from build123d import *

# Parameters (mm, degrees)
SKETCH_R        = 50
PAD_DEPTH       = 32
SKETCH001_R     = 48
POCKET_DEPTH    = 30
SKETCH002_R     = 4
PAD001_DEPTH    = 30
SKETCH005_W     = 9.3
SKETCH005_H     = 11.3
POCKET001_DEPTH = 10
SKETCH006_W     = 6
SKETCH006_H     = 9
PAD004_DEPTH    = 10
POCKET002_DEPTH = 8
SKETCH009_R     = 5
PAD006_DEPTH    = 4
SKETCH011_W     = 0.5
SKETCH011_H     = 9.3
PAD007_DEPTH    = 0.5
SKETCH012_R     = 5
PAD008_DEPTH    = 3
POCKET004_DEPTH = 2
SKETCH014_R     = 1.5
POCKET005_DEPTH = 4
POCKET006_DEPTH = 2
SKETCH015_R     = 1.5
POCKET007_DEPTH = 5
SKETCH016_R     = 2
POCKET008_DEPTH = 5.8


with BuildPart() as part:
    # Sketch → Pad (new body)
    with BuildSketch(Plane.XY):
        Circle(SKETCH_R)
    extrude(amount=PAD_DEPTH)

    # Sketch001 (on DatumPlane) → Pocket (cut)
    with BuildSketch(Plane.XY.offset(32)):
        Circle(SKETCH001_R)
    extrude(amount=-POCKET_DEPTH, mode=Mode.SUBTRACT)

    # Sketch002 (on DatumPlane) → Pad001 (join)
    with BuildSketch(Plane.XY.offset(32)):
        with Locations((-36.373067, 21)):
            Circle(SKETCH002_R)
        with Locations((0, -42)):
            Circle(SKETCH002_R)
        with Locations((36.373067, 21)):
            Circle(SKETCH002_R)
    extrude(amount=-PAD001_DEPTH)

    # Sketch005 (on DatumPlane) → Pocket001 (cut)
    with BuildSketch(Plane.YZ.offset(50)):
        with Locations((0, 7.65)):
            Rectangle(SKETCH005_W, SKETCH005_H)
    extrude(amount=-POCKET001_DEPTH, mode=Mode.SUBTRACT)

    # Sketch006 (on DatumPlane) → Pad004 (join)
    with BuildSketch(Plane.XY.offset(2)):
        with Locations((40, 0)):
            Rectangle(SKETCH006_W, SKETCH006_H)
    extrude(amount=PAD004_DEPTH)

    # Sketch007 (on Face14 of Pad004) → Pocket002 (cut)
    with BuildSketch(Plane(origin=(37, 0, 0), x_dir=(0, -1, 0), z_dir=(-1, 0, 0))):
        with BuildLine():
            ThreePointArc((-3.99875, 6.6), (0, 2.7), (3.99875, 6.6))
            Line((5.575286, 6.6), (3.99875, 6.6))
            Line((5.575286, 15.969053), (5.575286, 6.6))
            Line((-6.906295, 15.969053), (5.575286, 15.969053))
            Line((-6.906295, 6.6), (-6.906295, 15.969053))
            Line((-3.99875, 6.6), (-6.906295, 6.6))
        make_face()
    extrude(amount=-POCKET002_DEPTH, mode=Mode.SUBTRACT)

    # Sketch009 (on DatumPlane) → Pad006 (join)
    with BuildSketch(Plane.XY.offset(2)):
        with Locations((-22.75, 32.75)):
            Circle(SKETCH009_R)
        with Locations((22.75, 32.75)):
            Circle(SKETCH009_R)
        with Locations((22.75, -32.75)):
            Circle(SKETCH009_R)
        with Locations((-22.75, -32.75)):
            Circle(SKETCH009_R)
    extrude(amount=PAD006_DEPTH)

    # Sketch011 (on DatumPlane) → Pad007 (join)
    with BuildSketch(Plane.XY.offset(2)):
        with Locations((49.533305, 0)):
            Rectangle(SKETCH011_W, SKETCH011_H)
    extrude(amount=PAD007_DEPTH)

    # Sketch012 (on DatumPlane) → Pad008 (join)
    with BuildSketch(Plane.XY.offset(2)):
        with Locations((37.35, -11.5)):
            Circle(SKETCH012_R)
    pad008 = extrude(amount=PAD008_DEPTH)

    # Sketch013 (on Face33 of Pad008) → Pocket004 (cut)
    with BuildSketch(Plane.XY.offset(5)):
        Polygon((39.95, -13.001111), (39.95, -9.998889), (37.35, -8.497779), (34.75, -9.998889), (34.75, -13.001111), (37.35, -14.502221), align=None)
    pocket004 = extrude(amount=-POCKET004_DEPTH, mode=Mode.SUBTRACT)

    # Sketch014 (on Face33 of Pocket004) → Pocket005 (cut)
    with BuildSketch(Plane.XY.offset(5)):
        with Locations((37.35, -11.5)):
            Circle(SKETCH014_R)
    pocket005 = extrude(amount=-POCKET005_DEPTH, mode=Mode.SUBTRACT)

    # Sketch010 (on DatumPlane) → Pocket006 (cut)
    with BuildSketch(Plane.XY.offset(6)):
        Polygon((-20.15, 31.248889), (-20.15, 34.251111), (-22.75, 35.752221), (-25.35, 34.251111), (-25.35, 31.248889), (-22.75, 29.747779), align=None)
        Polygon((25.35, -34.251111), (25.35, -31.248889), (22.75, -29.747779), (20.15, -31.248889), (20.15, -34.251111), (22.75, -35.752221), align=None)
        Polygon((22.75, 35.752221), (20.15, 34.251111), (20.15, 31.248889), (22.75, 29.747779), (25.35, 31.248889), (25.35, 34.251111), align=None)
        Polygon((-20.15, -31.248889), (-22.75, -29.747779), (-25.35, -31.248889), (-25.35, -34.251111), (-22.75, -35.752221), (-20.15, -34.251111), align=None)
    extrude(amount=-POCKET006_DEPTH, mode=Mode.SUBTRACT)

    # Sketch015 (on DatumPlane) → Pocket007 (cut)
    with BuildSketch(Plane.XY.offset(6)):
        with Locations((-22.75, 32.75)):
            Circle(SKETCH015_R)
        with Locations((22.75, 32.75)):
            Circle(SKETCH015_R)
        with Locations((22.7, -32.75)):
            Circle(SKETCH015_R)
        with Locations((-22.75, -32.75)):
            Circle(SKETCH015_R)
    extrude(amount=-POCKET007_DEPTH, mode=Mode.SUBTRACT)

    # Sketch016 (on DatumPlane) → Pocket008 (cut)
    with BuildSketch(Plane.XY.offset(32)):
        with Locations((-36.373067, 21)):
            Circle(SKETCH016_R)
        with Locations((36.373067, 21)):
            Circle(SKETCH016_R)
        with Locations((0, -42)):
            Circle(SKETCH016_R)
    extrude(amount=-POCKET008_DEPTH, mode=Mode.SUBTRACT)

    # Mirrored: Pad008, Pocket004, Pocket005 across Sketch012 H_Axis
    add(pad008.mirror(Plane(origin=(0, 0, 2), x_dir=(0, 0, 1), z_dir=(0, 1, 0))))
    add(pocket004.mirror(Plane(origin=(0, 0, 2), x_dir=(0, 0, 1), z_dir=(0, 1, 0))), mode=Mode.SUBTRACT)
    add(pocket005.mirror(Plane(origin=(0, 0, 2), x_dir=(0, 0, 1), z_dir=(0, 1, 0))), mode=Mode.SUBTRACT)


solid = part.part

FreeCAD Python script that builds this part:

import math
import FreeCAD as App
import Part
import Sketcher
from FreeCAD import Vector
Q = App.Units.Quantity


def add_polygon(sketch, points):
    """Adds a closed chain of lines whose ends are joined by coincident constraints."""
    first, n = sketch.GeometryCount, len(points)
    for a, b in zip(points, points[1:] + points[:1]):
        sketch.addGeometry(Part.LineSegment(App.Vector(*a, 0), App.Vector(*b, 0)), False)
    for i in range(n):
        sketch.addConstraint(Sketcher.Constraint("Coincident", first + i, 2, first + (i + 1) % n, 1))

doc = App.newDocument("Part")
body = doc.addObject("PartDesign::Body", "Body")

sketch1 = body.newObject("Sketcher::SketchObject", "Sketch")
sketch1.AttachmentSupport = (doc.getObject("XY_Plane"), [""])
sketch1.MapMode = "FlatFace"
sketch1.addGeometry(Part.Circle(Vector(0, 0, 0), Vector(0, 0, 1), 50), False)
sketch1.addConstraint([
    Sketcher.Constraint("Coincident", 0, 3, -1, 1),
    Sketcher.Constraint("Diameter", 0, Q("100 mm")),
])
pad1 = body.newObject("PartDesign::Pad", "Pad")
pad1.Profile = sketch1
pad1.Length = 32

sketch2 = body.newObject("Sketcher::SketchObject", "Sketch001")
sketch2.AttachmentSupport = (doc.getObject("XY_Plane"), [""])
sketch2.MapMode = "FlatFace"
sketch2.AttachmentOffset = App.Placement(Vector(0, 0, 32), App.Rotation())
sketch2.addGeometry(Part.Circle(Vector(0, 0, 0), Vector(0, 0, 1), 48), False)
sketch2.addConstraint([
    Sketcher.Constraint("Coincident", 0, 3, -1, 1),
    Sketcher.Constraint("Diameter", 0, Q("96 mm")),
])
pocket1 = body.newObject("PartDesign::Pocket", "Pocket")
pocket1.Profile = sketch2
pocket1.Length = 30

sketch3 = body.newObject("Sketcher::SketchObject", "Sketch002")
sketch3.AttachmentSupport = (doc.getObject("XY_Plane"), [""])
sketch3.MapMode = "FlatFace"
sketch3.AttachmentOffset = App.Placement(Vector(0, 0, 32), App.Rotation())
sketch3.addGeometry([
    Part.Circle(Vector(-36.4, 21, 0), Vector(0, 0, 1), 4),
    Part.Circle(Vector(0, -42, 0), Vector(0, 0, 1), 4),
    Part.Circle(Vector(36.4, 21, 0), Vector(0, 0, 1), 4),
], False)
sketch3.addConstraint([
    Sketcher.Constraint("Equal", 0, 1),
    Sketcher.Constraint("Equal", 1, 2),
    Sketcher.Constraint("Symmetric", 0, 3, 2, 3, -2),
    Sketcher.Constraint("PointOnObject", 1, 3, -2),
    Sketcher.Constraint("Diameter", 0, Q("8 mm")),
    Sketcher.Constraint("DistanceY", -1, 1, 0, 3, Q("21 mm")),
    Sketcher.Constraint("DistanceY", 1, 3, -1, 1, Q("42 mm")),
    Sketcher.Constraint("DistanceX", 0, 3, -1, 1, Q("36.373067 mm")),
])
pad2 = body.newObject("PartDesign::Pad", "Pad001")
pad2.Profile = sketch3
pad2.Length = 30
pad2.Reversed = True

sketch4 = body.newObject("Sketcher::SketchObject", "Sketch003")
sketch4.AttachmentSupport = (doc.getObject("YZ_Plane"), [""])
sketch4.MapMode = "FlatFace"
sketch4.AttachmentOffset = App.Placement(Vector(0, 0, 50), App.Rotation())
add_polygon(sketch4, [(-5, 13), (-5, 2), (5, 2), (5, 13)])
sketch4.addConstraint([
    Sketcher.Constraint("Vertical", 0),
    Sketcher.Constraint("Horizontal", 1),
    Sketcher.Constraint("Vertical", 2),
    Sketcher.Constraint("Horizontal", 3),
    Sketcher.Constraint("DistanceX", 1, 1, 1, 2, Q("9.3 mm")),
    Sketcher.Constraint("DistanceY", 0, 2, 0, 1, Q("11.3 mm")),
    Sketcher.Constraint("DistanceY", -1, 1, 0, 2, Q("2 mm")),
    Sketcher.Constraint("DistanceX", 0, 2, -1, 1, Q("4.65 mm")),
])
pocket2 = body.newObject("PartDesign::Pocket", "Pocket001")
pocket2.Profile = sketch4
pocket2.Length = 10

sketch5 = body.newObject("Sketcher::SketchObject", "Sketch004")
sketch5.AttachmentSupport = (doc.getObject("XY_Plane"), [""])
sketch5.MapMode = "FlatFace"
sketch5.AttachmentOffset = App.Placement(Vector(0, 0, 2), App.Rotation())
add_polygon(sketch5, [(37, 4), (37, -4), (43, -4), (43, 4)])
sketch5.addConstraint([
    Sketcher.Constraint("Vertical", 0),
    Sketcher.Constraint("Horizontal", 1),
    Sketcher.Constraint("Vertical", 2),
    Sketcher.Constraint("Horizontal", 3),
    Sketcher.Constraint("DistanceX", 1, 1, 1, 2, Q("6 mm")),
    Sketcher.Constraint("DistanceY", 0, 2, 0, 1, Q("9 mm")),
    Sketcher.Constraint("DistanceX", -1, 1, 0, 2, Q("37 mm")),
    Sketcher.Constraint("DistanceY", 0, 2, -1, 1, Q("4.5 mm")),
])
pad3 = body.newObject("PartDesign::Pad", "Pad002")
pad3.Profile = sketch5
pad3.Length = 10

sketch6 = body.newObject("Sketcher::SketchObject", "Sketch005")
sketch6.AttachmentSupport = (doc.getObject("YZ_Plane"), [""])
sketch6.MapMode = "FlatFace"
sketch6.AttachmentOffset = App.Placement(Vector(0, 0, 37), App.Rotation())
sketch6.addGeometry([
    Part.ArcOfCircle(Part.Circle(Vector(0, 6.7, 0), Vector(0, 0, 1), 4), math.radians(-179), math.radians(-1)),
    Part.LineSegment(Vector(-4, 6.6, 0), Vector(-5.6, 6.6, 0)),
    Part.LineSegment(Vector(-5.6, 6.6, 0), Vector(-5.6, 16, 0)),
    Part.LineSegment(Vector(-5.6, 16, 0), Vector(6.9, 16, 0)),
    Part.LineSegment(Vector(6.9, 16, 0), Vector(6.9, 6.6, 0)),
    Part.LineSegment(Vector(6.9, 6.6, 0), Vector(4, 6.6, 0)),
], False)
sketch6.addConstraint([
    Sketcher.Constraint("Coincident", 0, 1, 1, 1),
    Sketcher.Constraint("Coincident", 1, 2, 2, 1),
    Sketcher.Constraint("Coincident", 2, 2, 3, 1),
    Sketcher.Constraint("Coincident", 3, 2, 4, 1),
    Sketcher.Constraint("Coincident", 4, 2, 5, 1),
    Sketcher.Constraint("Coincident", 5, 2, 0, 2),
    Sketcher.Constraint("Horizontal", 1),
    Sketcher.Constraint("Vertical", 2),
    Sketcher.Constraint("Horizontal", 3),
    Sketcher.Constraint("Vertical", 4),
    Sketcher.Constraint("Horizontal", 5),
    Sketcher.Constraint("Symmetric", 0, 1, 5, 2, -2),
    Sketcher.Constraint("Radius", 0, Q("4 mm")),
    Sketcher.Constraint("DistanceY", -1, 1, 0, 3, Q("6.7 mm")),
    Sketcher.Constraint("DistanceY", -1, 1, 0, 1, Q("6.6 mm")),
    Sketcher.Constraint("DistanceX", 3, 1, 3, 2, Q("12.481581 mm")),
    Sketcher.Constraint("DistanceX", 1, 2, 1, 1, Q("1.576536 mm")),
    Sketcher.Constraint("DistanceY", 2, 1, 2, 2, Q("9.369053 mm")),
])
pocket3 = body.newObject("PartDesign::Pocket", "Pocket002")
pocket3.Profile = sketch6
pocket3.Length = 8
pocket3.Reversed = True

sketch7 = body.newObject("Sketcher::SketchObject", "Sketch006")
sketch7.AttachmentSupport = (doc.getObject("XY_Plane"), [""])
sketch7.MapMode = "FlatFace"
sketch7.AttachmentOffset = App.Placement(Vector(0, 0, 2), App.Rotation())
sketch7.addGeometry([
    Part.Circle(Vector(-23, 33, 0), Vector(0, 0, 1), 5),
    Part.Circle(Vector(23, 33, 0), Vector(0, 0, 1), 5),
    Part.Circle(Vector(23, -33, 0), Vector(0, 0, 1), 5),
    Part.Circle(Vector(-23, -33, 0), Vector(0, 0, 1), 5),
], False)
sketch7.addConstraint([
    Sketcher.Constraint("Equal", 0, 1),
    Sketcher.Constraint("Equal", 1, 2),
    Sketcher.Constraint("Equal", 2, 3),
    Sketcher.Constraint("Symmetric", 0, 3, 2, 3, -1, 1),
    Sketcher.Constraint("Symmetric", 1, 3, 3, 3, -1, 1),
    Sketcher.Constraint("Symmetric", 0, 3, 1, 3, -2),
    Sketcher.Constraint("Diameter", 0, Q("10 mm")),
    Sketcher.Constraint("DistanceX", 0, 3, 1, 3, Q("45.5 mm")),
    Sketcher.Constraint("DistanceY", 2, 3, 1, 3, Q("65.5 mm")),
])
pad4 = body.newObject("PartDesign::Pad", "Pad003")
pad4.Profile = sketch7
pad4.Length = 4

sketch8 = body.newObject("Sketcher::SketchObject", "Sketch007")
sketch8.AttachmentSupport = (doc.getObject("XY_Plane"), [""])
sketch8.MapMode = "FlatFace"
sketch8.AttachmentOffset = App.Placement(Vector(0, 0, 2), App.Rotation())
add_polygon(sketch8, [(49.3, 4.7), (49.3, -4.7), (49.8, -4.7), (49.8, 4.7)])
sketch8.addConstraint([
    Sketcher.Constraint("Vertical", 0),
    Sketcher.Constraint("Horizontal", 1),
    Sketcher.Constraint("Vertical", 2),
    Sketcher.Constraint("Horizontal", 3),
    Sketcher.Constraint("DistanceX", 1, 1, 1, 2, Q("0.5 mm")),
    Sketcher.Constraint("DistanceY", 0, 2, 0, 1, Q("9.3 mm")),
    Sketcher.Constraint("DistanceY", 0, 2, -1, 1, Q("4.65 mm")),
    Sketcher.Constraint("DistanceX", -1, 1, 0, 2, Q("49.283305 mm")),
])
pad5 = body.newObject("PartDesign::Pad", "Pad004")
pad5.Profile = sketch8
pad5.Length = 0.5

sketch9 = body.newObject("Sketcher::SketchObject", "Sketch008")
sketch9.AttachmentSupport = (doc.getObject("XY_Plane"), [""])
sketch9.MapMode = "FlatFace"
sketch9.AttachmentOffset = App.Placement(Vector(0, 0, 2), App.Rotation())
sketch9.addGeometry(Part.Circle(Vector(37, -12, 0), Vector(0, 0, 1), 5), False)
sketch9.addConstraint([
    Sketcher.Constraint("Diameter", 0, Q("10 mm")),
    Sketcher.Constraint("DistanceY", 0, 3, -1, 1, Q("11.5 mm")),
    Sketcher.Constraint("DistanceX", -1, 1, 0, 3, Q("37.35 mm")),
])
pad6 = body.newObject("PartDesign::Pad", "Pad005")
pad6.Profile = sketch9
pad6.Length = 3

sketch10 = body.newObject("Sketcher::SketchObject", "Sketch009")
sketch10.AttachmentSupport = (doc.getObject("XY_Plane"), [""])
sketch10.MapMode = "FlatFace"
sketch10.AttachmentOffset = App.Placement(Vector(0, 0, 5), App.Rotation())
add_polygon(sketch10, [(40, -13), (40, -10), (37.4, -8.5), (34.8, -10), (34.8, -13), (37.4, -14.5)])
sketch10.addConstraint([
    Sketcher.Constraint("Vertical", 0),
    Sketcher.Constraint("Vertical", 3),
    Sketcher.Constraint("Parallel", 1, 4),
    Sketcher.Constraint("Parallel", 2, 5),
    Sketcher.Constraint("Horizontal", 0, 2, 2, 2),
    Sketcher.Constraint("Horizontal", 3, 2, 5, 2),
    Sketcher.Constraint("Vertical", 1, 2, 4, 2),
    Sketcher.Constraint("Angle", 1, Q("150.000012 deg")),
    Sketcher.Constraint("DistanceX", 1, 2, 0, 2, Q("2.6 mm")),
    Sketcher.Constraint("DistanceX", -1, 1, 0, 2, Q("39.95 mm")),
    Sketcher.Constraint("DistanceY", 0, 1, 0, 2, Q("3.002222 mm")),
    Sketcher.Constraint("DistanceY", 0, 2, -1, 1, Q("9.998889 mm")),
])
pocket4 = body.newObject("PartDesign::Pocket", "Pocket003")
pocket4.Profile = sketch10
pocket4.Length = 2

sketch11 = body.newObject("Sketcher::SketchObject", "Sketch010")
sketch11.AttachmentSupport = (doc.getObject("XY_Plane"), [""])
sketch11.MapMode = "FlatFace"
sketch11.AttachmentOffset = App.Placement(Vector(0, 0, 5), App.Rotation())
sketch11.addGeometry(Part.Circle(Vector(37.4, -11.5, 0), Vector(0, 0, 1), 1.5), False)
sketch11.addConstraint([
    Sketcher.Constraint("Diameter", 0, Q("3 mm")),
    Sketcher.Constraint("DistanceY", 0, 3, -1, 1, Q("11.5 mm")),
    Sketcher.Constraint("DistanceX", -1, 1, 0, 3, Q("37.35 mm")),
])
pocket5 = body.newObject("PartDesign::Pocket", "Pocket004")
pocket5.Profile = sketch11
pocket5.Length = 4

sketch12 = body.newObject("Sketcher::SketchObject", "Sketch011")
sketch12.AttachmentSupport = (doc.getObject("XY_Plane"), [""])
sketch12.MapMode = "FlatFace"
sketch12.AttachmentOffset = App.Placement(Vector(0, 0, 6), App.Rotation())
add_polygon(sketch12, [(-20.1, 31.2), (-20.1, 34.3), (-22.8, 35.8), (-25.4, 34.3), (-25.4, 31.2), (-22.8, 29.7)])
add_polygon(sketch12, [(25.4, -34.3), (25.4, -31.2), (22.8, -29.7), (20.1, -31.2), (20.1, -34.3), (22.8, -35.8)])
add_polygon(sketch12, [(22.8, 35.8), (20.1, 34.3), (20.1, 31.2), (22.8, 29.7), (25.4, 31.2), (25.4, 34.3)])
add_polygon(sketch12, [(-20.1, -31.2), (-22.8, -29.7), (-25.4, -31.2), (-25.4, -34.3), (-22.8, -35.8), (-20.1, -34.3)])
sketch12.addConstraint([
    Sketcher.Constraint("Vertical", 0),
    Sketcher.Constraint("Vertical", 3),
    Sketcher.Constraint("Vertical", 6),
    Sketcher.Constraint("Vertical", 9),
    Sketcher.Constraint("Vertical", 13),
    Sketcher.Constraint("Vertical", 16),
    Sketcher.Constraint("Vertical", 20),
    Sketcher.Constraint("Vertical", 23),
    Sketcher.Constraint("Symmetric", 3, 2, 6, 2, -1, 1),
    Sketcher.Constraint("Symmetric", 4, 2, 7, 2, -1, 1),
    Sketcher.Constraint("Symmetric", 5, 2, 8, 2, -1, 1),
    Sketcher.Constraint("Symmetric", 1, 2, 10, 2, -1, 1),
    Sketcher.Constraint("Symmetric", 14, 2, 18, 2, -1, 1),
    Sketcher.Constraint("Symmetric", 15, 2, 19, 2, -1, 1),
    Sketcher.Constraint("Symmetric", 17, 2, 21, 2, -1, 1),
    Sketcher.Constraint("Symmetric", 12, 2, 22, 2, -1, 1),
    Sketcher.Constraint("Symmetric", 0, 2, 12, 2, -2),
    Sketcher.Constraint("Symmetric", 4, 2, 14, 2, -2),
    Sketcher.Constraint("Symmetric", 3, 2, 15, 2, -2),
    Sketcher.Constraint("Symmetric", 1, 2, 17, 2, -2),
    Sketcher.Constraint("Parallel", 1, 4),
    Sketcher.Constraint("Parallel", 2, 5),
    Sketcher.Constraint("Parallel", 7, 10),
    Sketcher.Constraint("Parallel", 8, 11),
    Sketcher.Constraint("Parallel", 11, 12),
    Sketcher.Constraint("Parallel", 10, 14),
    Sketcher.Constraint("Parallel", 14, 17),
    Sketcher.Constraint("Parallel", 17, 18),
    Sketcher.Constraint("Parallel", 18, 21),
    Sketcher.Constraint("Horizontal", 0, 2, 2, 2),
    Sketcher.Constraint("Horizontal", 3, 2, 5, 2),
    Sketcher.Constraint("Angle", 1, Q("150.000012 deg")),
    Sketcher.Constraint("DistanceX", 1, 2, 0, 2, Q("2.6 mm")),
    Sketcher.Constraint("DistanceX", 5, 2, 6, 2, Q("45.5 mm")),
    Sketcher.Constraint("DistanceY", 6, 2, 0, 2, Q("65.5 mm")),
    Sketcher.Constraint("DistanceY", 0, 1, 0, 2, Q("3.002222 mm")),
])
pocket6 = body.newObject("PartDesign::Pocket", "Pocket005")
pocket6.Profile = sketch12
pocket6.Length = 2

sketch13 = body.newObject("Sketcher::SketchObject", "Sketch012")
sketch13.AttachmentSupport = (doc.getObject("XY_Plane"), [""])
sketch13.MapMode = "FlatFace"
sketch13.AttachmentOffset = App.Placement(Vector(0, 0, 6), App.Rotation())
sketch13.addGeometry([
    Part.Circle(Vector(-22.8, 32.8, 0), Vector(0, 0, 1), 1.5),
    Part.Circle(Vector(22.8, 32.8, 0), Vector(0, 0, 1), 1.5),
    Part.Circle(Vector(22.7, -32.8, 0), Vector(0, 0, 1), 1.5),
    Part.Circle(Vector(-22.8, -32.8, 0), Vector(0, 0, 1), 1.5),
], False)
sketch13.addConstraint([
    Sketcher.Constraint("Equal", 0, 1),
    Sketcher.Constraint("Equal", 1, 2),
    Sketcher.Constraint("Equal", 2, 3),
    Sketcher.Constraint("Symmetric", 1, 3, 3, 3, -1, 1),
    Sketcher.Constraint("Symmetric", 0, 3, 1, 3, -2),
    Sketcher.Constraint("Horizontal", 2, 3, 3, 3),
    Sketcher.Constraint("Diameter", 0, Q("3 mm")),
    Sketcher.Constraint("DistanceX", -1, 1, 2, 3, Q("22.7 mm")),
    Sketcher.Constraint("DistanceX", 0, 3, 1, 3, Q("45.5 mm")),
    Sketcher.Constraint("DistanceY", 2, 3, 1, 3, Q("65.5 mm")),
])
pocket7 = body.newObject("PartDesign::Pocket", "Pocket006")
pocket7.Profile = sketch13
pocket7.Length = 5

sketch14 = body.newObject("Sketcher::SketchObject", "Sketch013")
sketch14.AttachmentSupport = (doc.getObject("XY_Plane"), [""])
sketch14.MapMode = "FlatFace"
sketch14.AttachmentOffset = App.Placement(Vector(0, 0, 32), App.Rotation())
sketch14.addGeometry([
    Part.Circle(Vector(-36.4, 21, 0), Vector(0, 0, 1), 2),
    Part.Circle(Vector(36.4, 21, 0), Vector(0, 0, 1), 2),
    Part.Circle(Vector(0, -42, 0), Vector(0, 0, 1), 2),
], False)
sketch14.addConstraint([
    Sketcher.Constraint("Equal", 0, 1),
    Sketcher.Constraint("Equal", 1, 2),
    Sketcher.Constraint("Symmetric", 0, 3, 1, 3, -2),
    Sketcher.Constraint("PointOnObject", 2, 3, -2),
    Sketcher.Constraint("Diameter", 0, Q("4 mm")),
    Sketcher.Constraint("DistanceY", -1, 1, 0, 3, Q("21 mm")),
    Sketcher.Constraint("DistanceY", 2, 3, -1, 1, Q("42 mm")),
    Sketcher.Constraint("DistanceX", 0, 3, -1, 1, Q("36.373067 mm")),
])
pocket8 = body.newObject("PartDesign::Pocket", "Pocket007")
pocket8.Profile = sketch14
pocket8.Length = 5.8
doc.recompute()

mirrored = body.newObject("PartDesign::Mirrored", "Mirrored")
mirrored.Originals = [pad6, pocket4, pocket5]
mirrored.MirrorPlane = (doc.getObject("XZ_Plane"), [""])
body.Tip = mirrored

doc.recompute()
